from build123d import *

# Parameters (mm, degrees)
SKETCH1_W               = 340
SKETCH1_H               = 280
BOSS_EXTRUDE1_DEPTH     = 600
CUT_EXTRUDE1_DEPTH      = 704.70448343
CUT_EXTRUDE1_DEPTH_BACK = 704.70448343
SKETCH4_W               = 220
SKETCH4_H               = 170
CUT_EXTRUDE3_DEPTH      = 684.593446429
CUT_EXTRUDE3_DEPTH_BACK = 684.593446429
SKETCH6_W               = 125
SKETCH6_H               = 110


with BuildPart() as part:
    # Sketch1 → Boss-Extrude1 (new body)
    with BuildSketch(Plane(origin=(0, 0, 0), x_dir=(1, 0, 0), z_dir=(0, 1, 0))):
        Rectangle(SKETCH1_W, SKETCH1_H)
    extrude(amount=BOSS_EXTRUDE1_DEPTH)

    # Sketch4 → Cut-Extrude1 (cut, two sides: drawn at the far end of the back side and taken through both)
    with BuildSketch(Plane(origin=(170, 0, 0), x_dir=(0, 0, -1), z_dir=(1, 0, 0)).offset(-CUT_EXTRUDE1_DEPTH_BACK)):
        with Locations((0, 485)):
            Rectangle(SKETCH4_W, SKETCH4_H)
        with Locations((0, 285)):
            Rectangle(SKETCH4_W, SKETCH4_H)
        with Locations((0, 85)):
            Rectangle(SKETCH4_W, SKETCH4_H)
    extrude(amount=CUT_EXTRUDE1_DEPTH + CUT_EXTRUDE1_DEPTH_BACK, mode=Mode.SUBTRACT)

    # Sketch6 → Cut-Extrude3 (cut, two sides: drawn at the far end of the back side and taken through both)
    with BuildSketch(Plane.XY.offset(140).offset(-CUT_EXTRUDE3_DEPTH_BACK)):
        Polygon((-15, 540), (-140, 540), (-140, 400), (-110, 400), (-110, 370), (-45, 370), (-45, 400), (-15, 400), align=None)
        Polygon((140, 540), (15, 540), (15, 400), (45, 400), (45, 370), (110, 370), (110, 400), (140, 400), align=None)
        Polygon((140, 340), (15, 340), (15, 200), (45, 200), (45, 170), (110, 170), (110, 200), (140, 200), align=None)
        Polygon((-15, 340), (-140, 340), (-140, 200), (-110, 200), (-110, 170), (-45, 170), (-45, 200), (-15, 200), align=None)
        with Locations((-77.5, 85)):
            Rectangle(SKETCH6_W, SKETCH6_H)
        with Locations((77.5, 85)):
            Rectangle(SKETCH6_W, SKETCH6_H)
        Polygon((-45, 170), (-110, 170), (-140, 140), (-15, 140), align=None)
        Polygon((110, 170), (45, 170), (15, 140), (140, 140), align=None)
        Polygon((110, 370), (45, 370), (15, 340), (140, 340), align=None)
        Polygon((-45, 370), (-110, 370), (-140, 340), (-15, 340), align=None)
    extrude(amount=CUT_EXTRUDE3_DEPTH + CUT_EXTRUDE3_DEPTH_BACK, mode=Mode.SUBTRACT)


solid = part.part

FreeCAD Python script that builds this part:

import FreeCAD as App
import Part
import Sketcher
from FreeCAD import Vector

doc = App.newDocument("Part")
body = doc.addObject("PartDesign::Body", "Body")

# Sketch on XZ plane
sketch1 = doc.addObject("Sketcher::SketchObject", "Sketch")
body.addObject(sketch1)
sketch1.AttachmentSupport = (doc.XZ_Plane, [""])
sketch1.MapMode = "FlatFace"
sketch1.addGeometry(Part.LineSegment(Vector(-170, -140, 0), Vector(-170, 140, 0)), False)
sketch1.addGeometry(Part.LineSegment(Vector(-170, 140, 0), Vector(170, 140, 0)), False)
sketch1.addGeometry(Part.LineSegment(Vector(170, 140, 0), Vector(170, -140, 0)), False)
sketch1.addGeometry(Part.LineSegment(Vector(170, -140, 0), Vector(-170, -140, 0)), False)
sketch1.addConstraint(Sketcher.Constraint("Coincident", 0, 2, 1, 1))
sketch1.addConstraint(Sketcher.Constraint("Coincident", 1, 2, 2, 1))
sketch1.addConstraint(Sketcher.Constraint("Coincident", 2, 2, 3, 1))
sketch1.addConstraint(Sketcher.Constraint("Coincident", 3, 2, 0, 1))
sketch1.addConstraint(Sketcher.Constraint("Vertical", 0))
sketch1.addConstraint(Sketcher.Constraint("Horizontal", 1))
sketch1.addConstraint(Sketcher.Constraint("Vertical", 2))
sketch1.addConstraint(Sketcher.Constraint("Horizontal", 3))
sketch1.addConstraint(Sketcher.Constraint("Symmetric", 0, 2, 2, 2, -1, 1))
sketch1.addConstraint(Sketcher.Constraint("DistanceX", 1, 1, 1, 2, 340.0))
sketch1.addConstraint(Sketcher.Constraint("DistanceY", 0, 1, 0, 2, 280.0))
pad1 = doc.addObject("PartDesign::Pad", "Pad")
body.addObject(pad1)
pad1.Profile = sketch1
pad1.Length = 600
pad1.Reversed = True

# Sketch on YZ plane
sketch2 = doc.addObject("Sketcher::SketchObject", "Sketch001")
body.addObject(sketch2)
sketch2.AttachmentSupport = (doc.YZ_Plane, [""])
sketch2.MapMode = "FlatFace"
sketch2.AttachmentOffset = App.Placement(Vector(0, 0, 170), App.Rotation())
sketch2.addGeometry(Part.LineSegment(Vector(570, 110, 0), Vector(400, 110, 0)), False)
sketch2.addGeometry(Part.LineSegment(Vector(400, 110, 0), Vector(400, -110, 0)), False)
sketch2.addGeometry(Part.LineSegment(Vector(400, -110, 0), Vector(570, -110, 0)), False)
sketch2.addGeometry(Part.LineSegment(Vector(570, -110, 0), Vector(570, 110, 0)), False)
sketch2.addGeometry(Part.LineSegment(Vector(370, 110, 0), Vector(200, 110, 0)), False)
sketch2.addGeometry(Part.LineSegment(Vector(200, 110, 0), Vector(200, -110, 0)), False)
sketch2.addGeometry(Part.LineSegment(Vector(200, -110, 0), Vector(370, -110, 0)), False)
sketch2.addGeometry(Part.LineSegment(Vector(370, -110, 0), Vector(370, 110, 0)), False)
sketch2.addGeometry(Part.LineSegment(Vector(170, 110, 0), Vector(0, 110, 0)), False)
sketch2.addGeometry(Part.LineSegment(Vector(0, 110, 0), Vector(0, -110, 0)), False)
sketch2.addGeometry(Part.LineSegment(Vector(0, -110, 0), Vector(170, -110, 0)), False)
sketch2.addGeometry(Part.LineSegment(Vector(170, -110, 0), Vector(170, 110, 0)), False)
sketch2.addConstraint(Sketcher.Constraint("Coincident", 0, 2, 1, 1))
sketch2.addConstraint(Sketcher.Constraint("Coincident", 1, 2, 2, 1))
sketch2.addConstraint(Sketcher.Constraint("Coincident", 2, 2, 3, 1))
sketch2.addConstraint(Sketcher.Constraint("Coincident", 3, 2, 0, 1))
sketch2.addConstraint(Sketcher.Constraint("Coincident", 4, 2, 5, 1))
sketch2.addConstraint(Sketcher.Constraint("Coincident", 5, 2, 6, 1))
sketch2.addConstraint(Sketcher.Constraint("Coincident", 6, 2, 7, 1))
sketch2.addConstraint(Sketcher.Constraint("Coincident", 7, 2, 4, 1))
sketch2.addConstraint(Sketcher.Constraint("Coincident", 8, 2, 9, 1))
sketch2.addConstraint(Sketcher.Constraint("Coincident", 9, 2, 10, 1))
sketch2.addConstraint(Sketcher.Constraint("Coincident", 10, 2, 11, 1))
sketch2.addConstraint(Sketcher.Constraint("Coincident", 11, 2, 8, 1))
sketch2.addConstraint(Sketcher.Constraint("Horizontal", 0))
sketch2.addConstraint(Sketcher.Constraint("Vertical", 1))
sketch2.addConstraint(Sketcher.Constraint("Horizontal", 2))
sketch2.addConstraint(Sketcher.Constraint("Vertical", 3))
sketch2.addConstraint(Sketcher.Constraint("Horizontal", 4))
sketch2.addConstraint(Sketcher.Constraint("Vertical", 5))
sketch2.addConstraint(Sketcher.Constraint("Horizontal", 6))
sketch2.addConstraint(Sketcher.Constraint("Vertical", 7))
sketch2.addConstraint(Sketcher.Constraint("Horizontal", 8))
sketch2.addConstraint(Sketcher.Constraint("Vertical", 9))
sketch2.addConstraint(Sketcher.Constraint("Horizontal", 10))
sketch2.addConstraint(Sketcher.Constraint("Vertical", 11))
sketch2.addConstraint(Sketcher.Constraint("Symmetric", 8, 2, 9, 2, -1, 1))
sketch2.addConstraint(Sketcher.Constraint("Horizontal", 3, 2, 4, 2))
sketch2.addConstraint(Sketcher.Constraint("Horizontal", 2, 2, 5, 2))
sketch2.addConstraint(Sketcher.Constraint("Horizontal", 7, 2, 8, 2))
sketch2.addConstraint(Sketcher.Constraint("Horizontal", 6, 2, 9, 2))
sketch2.addConstraint(Sketcher.Constraint("Equal", 2, 4))
sketch2.addConstraint(Sketcher.Constraint("Equal", 6, 8))
sketch2.addConstraint(Sketcher.Constraint("DistanceX", 0, 2, 0, 1, 170.0))
sketch2.addConstraint(Sketcher.Constraint("DistanceY", 1, 2, 1, 1, 220.0))
sketch2.addConstraint(Sketcher.Constraint("DistanceX", -1, 1, 0, 2, 400.0))
sketch2.addConstraint(Sketcher.Constraint("DistanceX", -1, 1, 4, 2, 200.0))
pocket1 = doc.addObject("PartDesign::Pocket", "Pocket")
body.addObject(pocket1)
pocket1.Profile = sketch2
pocket1.Type = "ThroughAll"
pocket1.Midplane = True

# Sketch on XY plane
sketch3 = doc.addObject("Sketcher::SketchObject", "Sketch002")
body.addObject(sketch3)
sketch3.AttachmentSupport = (doc.XY_Plane, [""])
sketch3.MapMode = "FlatFace"
sketch3.AttachmentOffset = App.Placement(Vector(0, 0, 140), App.Rotation())
sketch3.addGeometry(Part.LineSegment(Vector(-15, 540, 0), Vector(-140, 540, 0)), False)
sketch3.addGeometry(Part.LineSegment(Vector(-140, 540, 0), Vector(-140, 400, 0)), False)
sketch3.addGeometry(Part.LineSegment(Vector(-140, 400, 0), Vector(-110, 400, 0)), False)
sketch3.addGeometry(Part.LineSegment(Vector(-110, 400, 0), Vector(-110, 370, 0)), False)
sketch3.addGeometry(Part.LineSegment(Vector(-110, 370, 0), Vector(-140, 340, 0)), False)
sketch3.addGeometry(Part.LineSegment(Vector(-140, 340, 0), Vector(-140, 200, 0)), False)
sketch3.addGeometry(Part.LineSegment(Vector(-140, 200, 0), Vector(-110, 200, 0)), False)
sketch3.addGeometry(Part.LineSegment(Vector(-110, 200, 0), Vector(-110, 170, 0)), False)
sketch3.addGeometry(Part.LineSegment(Vector(-110, 170, 0), Vector(-140, 140, 0)), False)
sketch3.addGeometry(Part.LineSegment(Vector(-140, 140, 0), Vector(-140, 30, 0)), False)
sketch3.addGeometry(Part.LineSegment(Vector(-140, 30, 0), Vector(-15, 30, 0)), False)
sketch3.addGeometry(Part.LineSegment(Vector(-15, 30, 0), Vector(-15, 140, 0)), False)
sketch3.addGeometry(Part.LineSegment(Vector(-15, 140, 0), Vector(-45, 170, 0)), False)
sketch3.addGeometry(Part.LineSegment(Vector(-45, 170, 0), Vector(-45, 200, 0)), False)
sketch3.addGeometry(Part.LineSegment(Vector(-45, 200, 0), Vector(-15, 200, 0)), False)
sketch3.addGeometry(Part.LineSegment(Vector(-15, 200, 0), Vector(-15, 340, 0)), False)
sketch3.addGeometry(Part.LineSegment(Vector(-15, 340, 0), Vector(-45, 370, 0)), False)
sketch3.addGeometry(Part.LineSegment(Vector(-45, 370, 0), Vector(-45, 400, 0)), False)
sketch3.addGeometry(Part.LineSegment(Vector(-45, 400, 0), Vector(-15, 400, 0)), False)
sketch3.addGeometry(Part.LineSegment(Vector(-15, 400, 0), Vector(-15, 540, 0)), False)
sketch3.addGeometry(Part.LineSegment(Vector(140, 540, 0), Vector(15, 540, 0)), False)
sketch3.addGeometry(Part.LineSegment(Vector(15, 540, 0), Vector(15, 400, 0)), False)
sketch3.addGeometry(Part.LineSegment(Vector(15, 400, 0), Vector(45, 400, 0)), False)
sketch3.addGeometry(Part.LineSegment(Vector(45, 400, 0), Vector(45, 370, 0)), False)
sketch3.addGeometry(Part.LineSegment(Vector(45, 370, 0), Vector(15, 340, 0)), False)
sketch3.addGeometry(Part.LineSegment(Vector(15, 340, 0), Vector(15, 200, 0)), False)
sketch3.addGeometry(Part.LineSegment(Vector(15, 200, 0), Vector(45, 200, 0)), False)
sketch3.addGeometry(Part.LineSegment(Vector(45, 200, 0), Vector(45, 170, 0)), False)
sketch3.addGeometry(Part.LineSegment(Vector(45, 170, 0), Vector(15, 140, 0)), False)
sketch3.addGeometry(Part.LineSegment(Vector(15, 140, 0), Vector(15, 30, 0)), False)
sketch3.addGeometry(Part.LineSegment(Vector(15, 30, 0), Vector(140, 30, 0)), False)
sketch3.addGeometry(Part.LineSegment(Vector(140, 30, 0), Vector(140, 140, 0)), False)
sketch3.addGeometry(Part.LineSegment(Vector(140, 140, 0), Vector(110, 170, 0)), False)
sketch3.addGeometry(Part.LineSegment(Vector(110, 170, 0), Vector(110, 200, 0)), False)
sketch3.addGeometry(Part.LineSegment(Vector(110, 200, 0), Vector(140, 200, 0)), False)
sketch3.addGeometry(Part.LineSegment(Vector(140, 200, 0), Vector(140, 340, 0)), False)
sketch3.addGeometry(Part.LineSegment(Vector(140, 340, 0), Vector(110, 370, 0)), False)
sketch3.addGeometry(Part.LineSegment(Vector(110, 370, 0), Vector(110, 400, 0)), False)
sketch3.addGeometry(Part.LineSegment(Vector(110, 400, 0), Vector(140, 400, 0)), False)
sketch3.addGeometry(Part.LineSegment(Vector(140, 400, 0), Vector(140, 540, 0)), False)
sketch3.addConstraint(Sketcher.Constraint("Coincident", 0, 2, 1, 1))
sketch3.addConstraint(Sketcher.Constraint("Coincident", 1, 2, 2, 1))
sketch3.addConstraint(Sketcher.Constraint("Coincident", 2, 2, 3, 1))
sketch3.addConstraint(Sketcher.Constraint("Coincident", 3, 2, 4, 1))
sketch3.addConstraint(Sketcher.Constraint("Coincident", 4, 2, 5, 1))
sketch3.addConstraint(Sketcher.Constraint("Coincident", 5, 2, 6, 1))
sketch3.addConstraint(Sketcher.Constraint("Coincident", 6, 2, 7, 1))
sketch3.addConstraint(Sketcher.Constraint("Coincident", 7, 2, 8, 1))
sketch3.addConstraint(Sketcher.Constraint("Coincident", 8, 2, 9, 1))
sketch3.addConstraint(Sketcher.Constraint("Coincident", 9, 2, 10, 1))
sketch3.addConstraint(Sketcher.Constraint("Coincident", 10, 2, 11, 1))
sketch3.addConstraint(Sketcher.Constraint("Coincident", 11, 2, 12, 1))
sketch3.addConstraint(Sketcher.Constraint("Coincident", 12, 2, 13, 1))
sketch3.addConstraint(Sketcher.Constraint("Coincident", 13, 2, 14, 1))
sketch3.addConstraint(Sketcher.Constraint("Coincident", 14, 2, 15, 1))
sketch3.addConstraint(Sketcher.Constraint("Coincident", 15, 2, 16, 1))
sketch3.addConstraint(Sketcher.Constraint("Coincident", 16, 2, 17, 1))
sketch3.addConstraint(Sketcher.Constraint("Coincident", 17, 2, 18, 1))
sketch3.addConstraint(Sketcher.Constraint("Coincident", 18, 2, 19, 1))
sketch3.addConstraint(Sketcher.Constraint("Coincident", 19, 2, 0, 1))
sketch3.addConstraint(Sketcher.Constraint("Coincident", 20, 2, 21, 1))
sketch3.addConstraint(Sketcher.Constraint("Coincident", 21, 2, 22, 1))
sketch3.addConstraint(Sketcher.Constraint("Coincident", 22, 2, 23, 1))
sketch3.addConstraint(Sketcher.Constraint("Coincident", 23, 2, 24, 1))
sketch3.addConstraint(Sketcher.Constraint("Coincident", 24, 2, 25, 1))
sketch3.addConstraint(Sketcher.Constraint("Coincident", 25, 2, 26, 1))
sketch3.addConstraint(Sketcher.Constraint("Coincident", 26, 2, 27, 1))
sketch3.addConstraint(Sketcher.Constraint("Coincident", 27, 2, 28, 1))
sketch3.addConstraint(Sketcher.Constraint("Coincident", 28, 2, 29, 1))
sketch3.addConstraint(Sketcher.Constraint("Coincident", 29, 2, 30, 1))
sketch3.addConstraint(Sketcher.Constraint("Coincident", 30, 2, 31, 1))
sketch3.addConstraint(Sketcher.Constraint("Coincident", 31, 2, 32, 1))
sketch3.addConstraint(Sketcher.Constraint("Coincident", 32, 2, 33, 1))
sketch3.addConstraint(Sketcher.Constraint("Coincident", 33, 2, 34, 1))
sketch3.addConstraint(Sketcher.Constraint("Coincident", 34, 2, 35, 1))
sketch3.addConstraint(Sketcher.Constraint("Coincident", 35, 2, 36, 1))
sketch3.addConstraint(Sketcher.Constraint("Coincident", 36, 2, 37, 1))
sketch3.addConstraint(Sketcher.Constraint("Coincident", 37, 2, 38, 1))
sketch3.addConstraint(Sketcher.Constraint("Coincident", 38, 2, 39, 1))
sketch3.addConstraint(Sketcher.Constraint("Coincident", 39, 2, 20, 1))
sketch3.addConstraint(Sketcher.Constraint("Horizontal", 0))
sketch3.addConstraint(Sketcher.Constraint("Vertical", 1))
sketch3.addConstraint(Sketcher.Constraint("Horizontal", 2))
sketch3.addConstraint(Sketcher.Constraint("Vertical", 3))
sketch3.addConstraint(Sketcher.Constraint("Vertical", 5))
sketch3.addConstraint(Sketcher.Constraint("Horizontal", 6))
sketch3.addConstraint(Sketcher.Constraint("Vertical", 7))
sketch3.addConstraint(Sketcher.Constraint("Vertical", 9))
sketch3.addConstraint(Sketcher.Constraint("Horizontal", 10))
sketch3.addConstraint(Sketcher.Constraint("Vertical", 11))
sketch3.addConstraint(Sketcher.Constraint("Vertical", 13))
sketch3.addConstraint(Sketcher.Constraint("Horizontal", 14))
sketch3.addConstraint(Sketcher.Constraint("Vertical", 15))
sketch3.addConstraint(Sketcher.Constraint("Vertical", 17))
sketch3.addConstraint(Sketcher.Constraint("Horizontal", 18))
sketch3.addConstraint(Sketcher.Constraint("Vertical", 19))
sketch3.addConstraint(Sketcher.Constraint("Horizontal", 20))
sketch3.addConstraint(Sketcher.Constraint("Vertical", 21))
sketch3.addConstraint(Sketcher.Constraint("Horizontal", 22))
sketch3.addConstraint(Sketcher.Constraint("Vertical", 23))
sketch3.addConstraint(Sketcher.Constraint("Vertical", 25))
sketch3.addConstraint(Sketcher.Constraint("Horizontal", 26))
sketch3.addConstraint(Sketcher.Constraint("Vertical", 27))
sketch3.addConstraint(Sketcher.Constraint("Vertical", 29))
sketch3.addConstraint(Sketcher.Constraint("Horizontal", 30))
sketch3.addConstraint(Sketcher.Constraint("Vertical", 31))
sketch3.addConstraint(Sketcher.Constraint("Vertical", 33))
sketch3.addConstraint(Sketcher.Constraint("Horizontal", 34))
sketch3.addConstraint(Sketcher.Constraint("Vertical", 35))
sketch3.addConstraint(Sketcher.Constraint("Vertical", 37))
sketch3.addConstraint(Sketcher.Constraint("Horizontal", 38))
sketch3.addConstraint(Sketcher.Constraint("Vertical", 39))
sketch3.addConstraint(Sketcher.Constraint("Symmetric", 19, 2, 20, 2, -2))
sketch3.addConstraint(Sketcher.Constraint("Symmetric", 17, 2, 22, 2, -2))
sketch3.addConstraint(Sketcher.Constraint("Symmetric", 15, 2, 24, 2, -2))
sketch3.addConstraint(Sketcher.Constraint("Symmetric", 13, 2, 26, 2, -2))
sketch3.addConstraint(Sketcher.Constraint("Symmetric", 11, 2, 28, 2, -2))
sketch3.addConstraint(Sketcher.Constraint("Symmetric", 9, 2, 30, 2, -2))
sketch3.addConstraint(Sketcher.Constraint("Symmetric", 7, 2, 32, 2, -2))
sketch3.addConstraint(Sketcher.Constraint("Symmetric", 5, 2, 34, 2, -2))
sketch3.addConstraint(Sketcher.Constraint("Symmetric", 3, 2, 36, 2, -2))
sketch3.addConstraint(Sketcher.Constraint("Symmetric", 1, 2, 38, 2, -2))
sketch3.addConstraint(Sketcher.Constraint("Parallel", 4, 8))
sketch3.addConstraint(Sketcher.Constraint("Perpendicular", 8, 12))
sketch3.addConstraint(Sketcher.Constraint("Parallel", 12, 16))
sketch3.addConstraint(Sketcher.Constraint("Perpendicular", 16, 24))
sketch3.addConstraint(Sketcher.Constraint("Parallel", 24, 28))
sketch3.addConstraint(Sketcher.Constraint("Perpendicular", 28, 32))
sketch3.addConstraint(Sketcher.Constraint("Parallel", 32, 36))
sketch3.addConstraint(Sketcher.Constraint("Horizontal", 8, 2, 11, 2))
sketch3.addConstraint(Sketcher.Constraint("Horizontal", 7, 2, 12, 2))
sketch3.addConstraint(Sketcher.Constraint("Horizontal", 6, 2, 13, 2))
sketch3.addConstraint(Sketcher.Constraint("Horizontal", 4, 2, 15, 2))
sketch3.addConstraint(Sketcher.Constraint("Horizontal", 3, 2, 16, 2))
sketch3.addConstraint(Sketcher.Constraint("Horizontal", 2, 2, 17, 2))
sketch3.addConstraint(Sketcher.Constraint("Horizontal", 16, 2, 23, 2))
sketch3.addConstraint(Sketcher.Constraint("Vertical", 1, 2, 4, 2))
sketch3.addConstraint(Sketcher.Constraint("Vertical", 3, 2, 6, 2))
sketch3.addConstraint(Sketcher.Constraint("Vertical", 5, 2, 8, 2))
sketch3.addConstraint(Sketcher.Constraint("Vertical", 11, 2, 14, 2))
sketch3.addConstraint(Sketcher.Constraint("Vertical", 15, 2, 18, 2))
sketch3.addConstraint(Sketcher.Constraint("Equal", 38, 3))
sketch3.addConstraint(Sketcher.Constraint("Equal", 1, 5))
sketch3.addConstraint(Sketcher.Constraint("Equal", 3, 7))
sketch3.addConstraint(Sketcher.Constraint("DistanceX", 0, 2, 0, 1, 125.0))
sketch3.addConstraint(Sketcher.Constraint("DistanceX", 2, 1, 2, 2, 30.0))
sketch3.addConstraint(Sketcher.Constraint("DistanceY", 1, 2, 1, 1, 140.0))
sketch3.addConstraint(Sketcher.Constraint("DistanceY", 9, 2, 9, 1, 110.0))
sketch3.addConstraint(Sketcher.Constraint("DistanceX", 0, 2, -1, 1, 140.0))
sketch3.addConstraint(Sketcher.Constraint("DistanceY", -1, 1, 0, 2, 540.0))
pocket2 = doc.addObject("PartDesign::Pocket", "Pocket001")
body.addObject(pocket2)
pocket2.Profile = sketch3
pocket2.Type = "ThroughAll"
pocket2.Midplane = True

doc.recompute()
